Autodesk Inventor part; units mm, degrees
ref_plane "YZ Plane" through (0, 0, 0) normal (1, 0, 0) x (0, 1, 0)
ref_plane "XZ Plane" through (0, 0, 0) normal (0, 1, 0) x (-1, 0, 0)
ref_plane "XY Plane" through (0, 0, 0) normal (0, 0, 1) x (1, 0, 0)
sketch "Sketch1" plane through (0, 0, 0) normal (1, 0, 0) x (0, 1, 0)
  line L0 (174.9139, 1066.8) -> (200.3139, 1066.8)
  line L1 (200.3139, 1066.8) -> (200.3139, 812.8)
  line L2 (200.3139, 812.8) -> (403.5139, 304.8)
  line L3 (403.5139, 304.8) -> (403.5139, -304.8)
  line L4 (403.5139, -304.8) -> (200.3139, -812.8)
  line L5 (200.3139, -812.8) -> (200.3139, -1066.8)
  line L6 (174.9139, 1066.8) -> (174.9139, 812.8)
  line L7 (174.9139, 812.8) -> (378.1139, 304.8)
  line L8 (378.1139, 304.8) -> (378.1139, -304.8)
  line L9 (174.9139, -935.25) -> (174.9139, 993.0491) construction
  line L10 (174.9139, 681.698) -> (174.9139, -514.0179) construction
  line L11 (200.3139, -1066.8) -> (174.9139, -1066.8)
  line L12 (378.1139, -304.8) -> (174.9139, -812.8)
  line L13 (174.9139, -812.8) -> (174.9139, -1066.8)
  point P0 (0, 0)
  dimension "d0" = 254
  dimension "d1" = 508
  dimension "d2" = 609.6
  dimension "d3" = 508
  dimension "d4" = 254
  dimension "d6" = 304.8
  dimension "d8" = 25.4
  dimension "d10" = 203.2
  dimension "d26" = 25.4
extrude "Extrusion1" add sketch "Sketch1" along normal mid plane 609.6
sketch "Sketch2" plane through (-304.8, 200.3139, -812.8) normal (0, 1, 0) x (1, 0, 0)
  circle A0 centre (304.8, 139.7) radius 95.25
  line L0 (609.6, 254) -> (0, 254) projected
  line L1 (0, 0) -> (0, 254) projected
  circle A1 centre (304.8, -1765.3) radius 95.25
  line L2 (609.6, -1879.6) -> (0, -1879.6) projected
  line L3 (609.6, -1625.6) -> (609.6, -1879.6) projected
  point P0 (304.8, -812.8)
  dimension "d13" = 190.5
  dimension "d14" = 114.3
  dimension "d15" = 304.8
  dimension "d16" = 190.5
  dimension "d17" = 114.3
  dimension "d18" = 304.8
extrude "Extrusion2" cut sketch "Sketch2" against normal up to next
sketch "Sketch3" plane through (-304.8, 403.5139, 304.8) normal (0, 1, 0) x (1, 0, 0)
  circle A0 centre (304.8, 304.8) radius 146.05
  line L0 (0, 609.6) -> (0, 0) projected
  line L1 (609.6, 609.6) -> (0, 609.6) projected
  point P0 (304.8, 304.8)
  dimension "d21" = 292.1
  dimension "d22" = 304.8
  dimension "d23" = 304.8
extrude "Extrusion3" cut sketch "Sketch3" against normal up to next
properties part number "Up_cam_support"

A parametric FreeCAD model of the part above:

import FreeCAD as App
import Part
import Sketcher
Q = App.Units.Quantity

doc = App.newDocument("Part")
body = doc.addObject("PartDesign::Body", "Body")

sketch1 = body.newObject("Sketcher::SketchObject", "Sketch")
sketch1.AttachmentSupport = (doc.getObject("YZ_Plane"), [""])
sketch1.MapMode = "FlatFace"
sketch1.addGeometry([
    Part.LineSegment(App.Vector(200, 1067, 0), App.Vector(175, 1067, 0)),
    Part.LineSegment(App.Vector(175, 1067, 0), App.Vector(175, 813, 0)),
    Part.LineSegment(App.Vector(175, 813, 0), App.Vector(378, 305, 0)),
    Part.LineSegment(App.Vector(378, 305, 0), App.Vector(378, -305, 0)),
    Part.LineSegment(App.Vector(378, -305, 0), App.Vector(175, -813, 0)),
    Part.LineSegment(App.Vector(175, -813, 0), App.Vector(175, -1067, 0)),
    Part.LineSegment(App.Vector(175, -1067, 0), App.Vector(200, -1067, 0)),
    Part.LineSegment(App.Vector(200, -1067, 0), App.Vector(200, -813, 0)),
    Part.LineSegment(App.Vector(200, -813, 0), App.Vector(404, -305, 0)),
    Part.LineSegment(App.Vector(404, -305, 0), App.Vector(404, 305, 0)),
    Part.LineSegment(App.Vector(404, 305, 0), App.Vector(200, 813, 0)),
    Part.LineSegment(App.Vector(200, 813, 0), App.Vector(200, 1067, 0)),
], False)
sketch1.addConstraint([
    Sketcher.Constraint("Coincident", 0, 2, 1, 1),
    Sketcher.Constraint("Coincident", 1, 2, 2, 1),
    Sketcher.Constraint("Coincident", 2, 2, 3, 1),
    Sketcher.Constraint("Coincident", 3, 2, 4, 1),
    Sketcher.Constraint("Coincident", 4, 2, 5, 1),
    Sketcher.Constraint("Coincident", 5, 2, 6, 1),
    Sketcher.Constraint("Coincident", 6, 2, 7, 1),
    Sketcher.Constraint("Coincident", 7, 2, 8, 1),
    Sketcher.Constraint("Coincident", 8, 2, 9, 1),
    Sketcher.Constraint("Coincident", 9, 2, 10, 1),
    Sketcher.Constraint("Coincident", 10, 2, 11, 1),
    Sketcher.Constraint("Coincident", 11, 2, 0, 1),
    Sketcher.Constraint("Horizontal", 0),
    Sketcher.Constraint("Vertical", 1),
    Sketcher.Constraint("Vertical", 3),
    Sketcher.Constraint("Vertical", 5),
    Sketcher.Constraint("Horizontal", 6),
    Sketcher.Constraint("Vertical", 7),
    Sketcher.Constraint("Vertical", 9),
    Sketcher.Constraint("Vertical", 11),
    Sketcher.Constraint("Symmetric", 1, 2, 4, 2, -1),
    Sketcher.Constraint("Symmetric", 7, 2, 10, 2, -1),
    Sketcher.Constraint("Parallel", 4, 8),
    Sketcher.Constraint("Parallel", 2, 10),
    Sketcher.Constraint("Horizontal", 4, 2, 7, 2),
    Sketcher.Constraint("Horizontal", 3, 2, 8, 2),
    Sketcher.Constraint("Equal", 1, 5),
    Sketcher.Constraint("Equal", 2, 4),
    Sketcher.Constraint("DistanceX", 0, 2, 0, 1, Q("1 in")),
    Sketcher.Constraint("DistanceY", 1, 2, 1, 1, Q("10 in")),
    Sketcher.Constraint("DistanceY", 3, 2, 3, 1, Q("24 in")),
    Sketcher.Constraint("DistanceX", 1, 2, 2, 2, Q("8 in")),
    Sketcher.Constraint("DistanceY", 2, 2, 1, 2, Q("20 in")),
    Sketcher.Constraint("DistanceX", -1, 1, 0, 2, Q("174.914 mm")),
])
pad1 = body.newObject("PartDesign::Pad", "Pad")
pad1.Profile = sketch1
pad1.Length = Q("24 in")
pad1.Midplane = True

sketch2 = body.newObject("Sketcher::SketchObject", "Sketch001")
sketch2.AttachmentSupport = (doc.getObject("XZ_Plane"), [""])
sketch2.MapMode = "FlatFace"
sketch2.AttachmentOffset = App.Placement(App.Vector(0, 0, -200.3139), App.Rotation())
sketch2.addGeometry([
    Part.Circle(App.Vector(0, -952, 0), App.Vector(0, 0, 1), 95),
    Part.Circle(App.Vector(0, 952, 0), App.Vector(0, 0, 1), 95),
], False)
sketch2.addConstraint([
    Sketcher.Constraint("Equal", 0, 1),
    Sketcher.Constraint("Symmetric", 0, 3, 1, 3, -1, 1),
    Sketcher.Constraint("PointOnObject", 0, 3, -2),
    Sketcher.Constraint("Diameter", 0, Q("7.5 in")),
    Sketcher.Constraint("DistanceY", 0, 3, 1, 3, Q("75 in")),
])
pocket1 = body.newObject("PartDesign::Pocket", "Pocket")
pocket1.Profile = sketch2
pocket1.Length = Q("1 in")
pocket1.Reversed = True

sketch3 = body.newObject("Sketcher::SketchObject", "Sketch002")
sketch3.AttachmentSupport = (doc.getObject("XZ_Plane"), [""])
sketch3.MapMode = "FlatFace"
sketch3.AttachmentOffset = App.Placement(App.Vector(0, 0, -403.5139), App.Rotation())
sketch3.addGeometry(Part.Circle(App.Vector(0, 0, 0), App.Vector(0, 0, 1), 146), False)
sketch3.addConstraint([
    Sketcher.Constraint("Coincident", 0, 3, -1, 1),
    Sketcher.Constraint("Diameter", 0, Q("11.5 in")),
])
pocket2 = body.newObject("PartDesign::Pocket", "Pocket001")
pocket2.Profile = sketch3
pocket2.Type = "UpToFirst"
pocket2.Reversed = True

doc.recompute()
